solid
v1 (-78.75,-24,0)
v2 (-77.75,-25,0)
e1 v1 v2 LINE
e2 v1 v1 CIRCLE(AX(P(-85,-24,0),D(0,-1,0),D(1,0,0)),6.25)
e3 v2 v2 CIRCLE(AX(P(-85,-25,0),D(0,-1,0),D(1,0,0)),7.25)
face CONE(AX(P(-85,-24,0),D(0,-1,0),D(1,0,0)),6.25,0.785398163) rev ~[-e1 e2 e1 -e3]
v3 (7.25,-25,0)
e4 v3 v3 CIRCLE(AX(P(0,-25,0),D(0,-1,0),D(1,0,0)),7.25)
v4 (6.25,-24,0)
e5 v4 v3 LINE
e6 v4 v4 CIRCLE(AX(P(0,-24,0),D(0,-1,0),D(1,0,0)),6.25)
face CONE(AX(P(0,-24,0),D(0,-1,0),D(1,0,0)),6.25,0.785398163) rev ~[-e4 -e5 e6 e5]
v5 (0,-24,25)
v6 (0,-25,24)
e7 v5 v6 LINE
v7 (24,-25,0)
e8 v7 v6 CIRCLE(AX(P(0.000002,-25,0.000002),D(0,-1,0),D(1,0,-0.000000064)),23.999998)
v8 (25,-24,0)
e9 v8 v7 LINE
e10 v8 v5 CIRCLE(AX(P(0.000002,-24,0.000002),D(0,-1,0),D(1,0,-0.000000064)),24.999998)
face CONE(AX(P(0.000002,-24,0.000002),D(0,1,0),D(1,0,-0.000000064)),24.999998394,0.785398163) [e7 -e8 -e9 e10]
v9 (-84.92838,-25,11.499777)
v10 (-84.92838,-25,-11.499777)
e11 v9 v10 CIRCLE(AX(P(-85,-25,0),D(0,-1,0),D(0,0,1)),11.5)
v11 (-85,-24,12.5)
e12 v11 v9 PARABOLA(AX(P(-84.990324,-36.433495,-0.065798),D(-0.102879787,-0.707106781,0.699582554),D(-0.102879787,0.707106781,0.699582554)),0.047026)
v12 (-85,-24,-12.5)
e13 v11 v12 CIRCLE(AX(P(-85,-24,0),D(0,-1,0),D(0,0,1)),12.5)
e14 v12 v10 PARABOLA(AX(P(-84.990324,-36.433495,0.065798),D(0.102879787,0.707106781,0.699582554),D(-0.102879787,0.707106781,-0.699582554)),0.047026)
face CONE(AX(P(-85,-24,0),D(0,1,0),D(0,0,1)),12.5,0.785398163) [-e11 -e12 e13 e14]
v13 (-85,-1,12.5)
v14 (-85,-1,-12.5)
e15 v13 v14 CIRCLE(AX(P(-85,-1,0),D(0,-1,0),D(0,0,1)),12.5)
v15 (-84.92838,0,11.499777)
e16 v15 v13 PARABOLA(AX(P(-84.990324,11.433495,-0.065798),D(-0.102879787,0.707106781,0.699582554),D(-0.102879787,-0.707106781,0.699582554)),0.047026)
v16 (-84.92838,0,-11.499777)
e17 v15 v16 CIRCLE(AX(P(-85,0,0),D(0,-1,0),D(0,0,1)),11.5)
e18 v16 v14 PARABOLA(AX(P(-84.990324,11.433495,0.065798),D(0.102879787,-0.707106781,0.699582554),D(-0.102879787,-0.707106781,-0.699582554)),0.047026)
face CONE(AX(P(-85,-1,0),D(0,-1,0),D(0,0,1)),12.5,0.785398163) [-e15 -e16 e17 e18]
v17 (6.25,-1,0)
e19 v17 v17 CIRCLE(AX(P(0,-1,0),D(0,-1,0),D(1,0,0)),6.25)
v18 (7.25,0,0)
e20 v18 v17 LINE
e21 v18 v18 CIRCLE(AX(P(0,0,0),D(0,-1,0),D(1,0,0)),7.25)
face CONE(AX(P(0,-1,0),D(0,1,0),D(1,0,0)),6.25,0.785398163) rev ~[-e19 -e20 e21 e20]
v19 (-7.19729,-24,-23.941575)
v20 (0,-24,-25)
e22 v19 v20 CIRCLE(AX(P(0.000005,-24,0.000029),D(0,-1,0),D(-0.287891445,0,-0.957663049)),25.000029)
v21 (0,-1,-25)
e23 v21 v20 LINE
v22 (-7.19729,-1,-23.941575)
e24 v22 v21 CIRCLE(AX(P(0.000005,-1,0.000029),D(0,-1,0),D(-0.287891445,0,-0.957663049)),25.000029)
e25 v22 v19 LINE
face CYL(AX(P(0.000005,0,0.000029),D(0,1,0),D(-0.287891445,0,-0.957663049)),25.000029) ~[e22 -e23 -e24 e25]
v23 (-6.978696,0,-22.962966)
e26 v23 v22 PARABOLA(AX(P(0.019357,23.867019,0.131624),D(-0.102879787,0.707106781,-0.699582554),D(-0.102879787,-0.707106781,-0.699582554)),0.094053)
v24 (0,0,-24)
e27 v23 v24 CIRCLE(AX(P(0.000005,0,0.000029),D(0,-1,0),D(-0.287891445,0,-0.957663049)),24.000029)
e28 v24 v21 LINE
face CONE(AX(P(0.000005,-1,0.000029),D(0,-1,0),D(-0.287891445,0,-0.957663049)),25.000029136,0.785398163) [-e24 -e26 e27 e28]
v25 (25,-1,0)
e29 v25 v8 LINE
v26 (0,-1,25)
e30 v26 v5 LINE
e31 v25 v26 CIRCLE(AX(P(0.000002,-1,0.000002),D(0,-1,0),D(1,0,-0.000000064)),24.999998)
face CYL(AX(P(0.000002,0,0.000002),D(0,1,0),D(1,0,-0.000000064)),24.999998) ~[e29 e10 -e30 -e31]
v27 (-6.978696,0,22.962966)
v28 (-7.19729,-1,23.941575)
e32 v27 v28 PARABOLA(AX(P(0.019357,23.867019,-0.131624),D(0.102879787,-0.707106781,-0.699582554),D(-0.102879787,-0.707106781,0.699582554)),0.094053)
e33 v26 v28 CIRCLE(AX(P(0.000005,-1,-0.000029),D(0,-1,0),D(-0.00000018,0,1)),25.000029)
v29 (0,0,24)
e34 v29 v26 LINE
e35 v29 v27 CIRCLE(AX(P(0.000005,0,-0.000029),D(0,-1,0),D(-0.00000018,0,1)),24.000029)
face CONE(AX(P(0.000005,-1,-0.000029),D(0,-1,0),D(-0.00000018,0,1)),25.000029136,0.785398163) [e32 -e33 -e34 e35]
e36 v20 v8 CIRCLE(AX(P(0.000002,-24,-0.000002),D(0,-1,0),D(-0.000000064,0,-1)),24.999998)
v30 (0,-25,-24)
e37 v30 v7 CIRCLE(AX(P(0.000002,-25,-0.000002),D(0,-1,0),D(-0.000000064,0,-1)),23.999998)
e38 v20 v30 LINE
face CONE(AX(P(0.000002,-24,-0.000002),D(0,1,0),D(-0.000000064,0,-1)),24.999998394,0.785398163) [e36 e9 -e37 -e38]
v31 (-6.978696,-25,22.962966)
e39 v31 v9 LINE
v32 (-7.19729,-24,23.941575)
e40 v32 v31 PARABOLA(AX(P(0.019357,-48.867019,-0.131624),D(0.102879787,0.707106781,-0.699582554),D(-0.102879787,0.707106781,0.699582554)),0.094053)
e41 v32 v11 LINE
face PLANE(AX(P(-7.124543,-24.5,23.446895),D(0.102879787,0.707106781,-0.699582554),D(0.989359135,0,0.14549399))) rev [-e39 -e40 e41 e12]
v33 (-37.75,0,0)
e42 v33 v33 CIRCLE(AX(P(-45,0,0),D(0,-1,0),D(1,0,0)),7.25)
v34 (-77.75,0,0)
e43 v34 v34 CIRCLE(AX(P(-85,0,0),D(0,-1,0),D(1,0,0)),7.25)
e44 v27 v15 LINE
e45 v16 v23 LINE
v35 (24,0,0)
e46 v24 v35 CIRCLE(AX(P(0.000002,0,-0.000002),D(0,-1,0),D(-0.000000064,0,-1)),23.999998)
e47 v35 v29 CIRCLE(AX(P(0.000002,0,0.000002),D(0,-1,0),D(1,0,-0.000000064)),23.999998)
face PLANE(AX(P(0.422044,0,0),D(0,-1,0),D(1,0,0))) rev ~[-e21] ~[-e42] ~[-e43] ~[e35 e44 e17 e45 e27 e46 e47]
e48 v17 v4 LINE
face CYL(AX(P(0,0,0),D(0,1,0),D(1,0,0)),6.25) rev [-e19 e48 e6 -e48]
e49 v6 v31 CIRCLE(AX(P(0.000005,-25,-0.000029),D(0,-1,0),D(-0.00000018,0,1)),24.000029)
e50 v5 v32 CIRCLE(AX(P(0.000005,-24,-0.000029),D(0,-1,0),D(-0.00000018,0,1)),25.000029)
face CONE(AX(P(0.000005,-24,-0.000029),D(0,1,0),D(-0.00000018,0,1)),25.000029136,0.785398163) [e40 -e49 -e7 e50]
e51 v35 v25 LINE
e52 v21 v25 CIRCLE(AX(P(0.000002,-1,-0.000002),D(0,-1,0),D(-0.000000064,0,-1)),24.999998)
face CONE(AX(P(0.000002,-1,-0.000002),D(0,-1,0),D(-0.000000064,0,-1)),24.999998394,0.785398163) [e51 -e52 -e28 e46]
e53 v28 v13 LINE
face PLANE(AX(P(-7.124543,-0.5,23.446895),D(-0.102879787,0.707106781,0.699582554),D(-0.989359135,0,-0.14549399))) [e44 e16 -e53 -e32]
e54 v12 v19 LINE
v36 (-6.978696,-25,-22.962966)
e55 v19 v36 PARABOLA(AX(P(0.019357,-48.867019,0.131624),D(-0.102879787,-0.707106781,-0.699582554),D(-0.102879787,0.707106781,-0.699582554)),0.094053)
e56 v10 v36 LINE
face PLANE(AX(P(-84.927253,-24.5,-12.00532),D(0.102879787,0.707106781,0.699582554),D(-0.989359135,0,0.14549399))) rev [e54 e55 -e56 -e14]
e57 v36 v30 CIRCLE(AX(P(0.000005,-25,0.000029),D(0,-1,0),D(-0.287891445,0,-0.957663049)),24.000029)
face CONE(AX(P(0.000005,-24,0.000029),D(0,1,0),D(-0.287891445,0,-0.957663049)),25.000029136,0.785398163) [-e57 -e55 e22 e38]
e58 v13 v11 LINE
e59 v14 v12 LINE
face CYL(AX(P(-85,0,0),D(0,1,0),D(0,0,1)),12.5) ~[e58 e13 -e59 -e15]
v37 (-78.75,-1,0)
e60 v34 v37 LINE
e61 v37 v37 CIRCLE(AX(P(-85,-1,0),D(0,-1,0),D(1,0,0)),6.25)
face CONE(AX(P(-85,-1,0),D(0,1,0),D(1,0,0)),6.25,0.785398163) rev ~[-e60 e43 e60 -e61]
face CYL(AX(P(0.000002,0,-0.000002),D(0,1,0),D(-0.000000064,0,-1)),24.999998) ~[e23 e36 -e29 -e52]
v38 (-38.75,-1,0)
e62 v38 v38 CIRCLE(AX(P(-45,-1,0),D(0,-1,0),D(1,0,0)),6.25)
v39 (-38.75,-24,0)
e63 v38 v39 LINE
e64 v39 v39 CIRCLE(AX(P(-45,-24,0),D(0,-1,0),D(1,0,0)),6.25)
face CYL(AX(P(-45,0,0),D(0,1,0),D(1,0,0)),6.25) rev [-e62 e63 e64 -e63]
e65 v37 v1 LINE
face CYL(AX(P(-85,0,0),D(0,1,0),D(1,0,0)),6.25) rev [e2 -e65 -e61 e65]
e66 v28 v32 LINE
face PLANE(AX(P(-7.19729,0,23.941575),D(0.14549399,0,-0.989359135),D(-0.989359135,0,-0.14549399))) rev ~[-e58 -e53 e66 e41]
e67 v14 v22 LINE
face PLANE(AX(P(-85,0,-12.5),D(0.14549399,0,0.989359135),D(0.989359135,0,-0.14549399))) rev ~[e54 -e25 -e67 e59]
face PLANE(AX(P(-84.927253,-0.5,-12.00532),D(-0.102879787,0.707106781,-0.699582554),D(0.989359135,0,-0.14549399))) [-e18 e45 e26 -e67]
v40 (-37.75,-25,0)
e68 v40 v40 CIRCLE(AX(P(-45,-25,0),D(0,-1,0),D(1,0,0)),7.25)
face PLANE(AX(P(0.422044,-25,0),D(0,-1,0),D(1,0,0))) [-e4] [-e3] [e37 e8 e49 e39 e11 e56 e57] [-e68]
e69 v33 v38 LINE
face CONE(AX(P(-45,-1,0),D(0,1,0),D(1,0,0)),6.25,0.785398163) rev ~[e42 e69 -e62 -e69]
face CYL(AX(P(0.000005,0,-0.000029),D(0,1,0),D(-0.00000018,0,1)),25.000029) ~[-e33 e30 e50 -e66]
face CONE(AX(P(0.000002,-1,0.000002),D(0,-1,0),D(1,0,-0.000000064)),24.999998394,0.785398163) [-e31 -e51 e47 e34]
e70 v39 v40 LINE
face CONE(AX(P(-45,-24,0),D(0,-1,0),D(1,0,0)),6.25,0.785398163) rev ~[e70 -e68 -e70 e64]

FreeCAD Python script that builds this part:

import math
import FreeCAD as App
import Part
import Sketcher


def edges_at(feature, points):
    """Names of the edges that pass closest to the given points."""
    edges = feature.Shape.Edges
    near = lambda p: min(range(len(edges)), key=lambda i: edges[i].distToShape(Part.Vertex(*p))[0])
    return sorted({f"Edge{near(p) + 1}" for p in points})

doc = App.newDocument("Part")
params = doc.addObject("Spreadsheet::Sheet", "Params")
for row, (alias, value) in enumerate([
    ("sketch1_radius", "24.999998 mm"),
    ("sketch1_diameter", "12.5 mm"),
    ("sketch1_radius2", "12.5 mm"),
    ("pad1_length", "25 mm"),
    ("chamfer_size", "1 mm"),
    ("chamfer2_size", "1 mm"),
], start=1):
    params.set(f"A{row}", alias)
    params.set(f"B{row}", "=" + value)
    params.setAlias(f"B{row}", alias)

body = doc.addObject("PartDesign::Body", "Body")

# Sketch on XZ plane
sketch1 = body.newObject("Sketcher::SketchObject", "Sketch")
sketch1.AttachmentSupport = (doc.getObject("XZ_Plane"), [""])
sketch1.MapMode = "FlatFace"
sketch1.addGeometry([
    Part.ArcOfCircle(Part.Circle(App.Vector(0.000002, -0.000002, 0), App.Vector(0, 0, 1), 24.999998), math.radians(-90.000004), math.radians(0.000004)),  # 0
    Part.ArcOfCircle(Part.Circle(App.Vector(0.000002, 0.000002, 0), App.Vector(0, 0, 1), 24.999998), math.radians(-0.000004), math.radians(90.000004)),  # 1
    Part.ArcOfCircle(Part.Circle(App.Vector(0.000005, -0.000029, 0), App.Vector(0, 0, 1), 25.000029), math.radians(90.00001), math.radians(106.731762)),  # 2
    Part.LineSegment(App.Vector(-7.19729, 23.941575, 0), App.Vector(-85, 12.5, 0)),  # 3
    Part.ArcOfCircle(Part.Circle(App.Vector(-85, 0, 0), App.Vector(0, 0, 1), 12.5), math.radians(90), math.radians(270)),  # 4
    Part.LineSegment(App.Vector(-85, -12.5, 0), App.Vector(-7.19729, -23.941575, 0)),  # 5
    Part.ArcOfCircle(Part.Circle(App.Vector(0.000005, 0.000029, 0), App.Vector(0, 0, 1), 25.000029), math.radians(-106.731762), math.radians(-90.00001)),  # 6
    Part.Circle(App.Vector(-85, 0, 0), App.Vector(0, 0, 1), 6.25),  # 7
    Part.Circle(App.Vector(-45, 0, 0), App.Vector(0, 0, 1), 6.25),  # 8
    Part.Circle(App.Vector(0, 0, 0), App.Vector(0, 0, 1), 6.25),  # 9
], False)
sketch1.addConstraint([
    Sketcher.Constraint("Tangent", 0, 2, 1, 1),
    Sketcher.Constraint("Tangent", 1, 2, 2, 1),
    Sketcher.Constraint("Coincident", 2, 2, 3, 1),
    Sketcher.Constraint("Coincident", 3, 2, 4, 1),
    Sketcher.Constraint("Coincident", 4, 2, 5, 1),
    Sketcher.Constraint("Coincident", 5, 2, 6, 1),
    Sketcher.Constraint("Tangent", 6, 2, 0, 1),
    Sketcher.Constraint("Coincident", 0, 3, -1, 1),
    Sketcher.Constraint("Coincident", 9, 3, -1, 1),
    Sketcher.Constraint("Coincident", 7, 3, 4, 3),
    Sketcher.Constraint("Equal", 0, 1),
    Sketcher.Constraint("Equal", 2, 6),
    Sketcher.Constraint("Equal", 7, 8),
    Sketcher.Constraint("Equal", 8, 9),
    Sketcher.Constraint("Symmetric", 3, 2, 4, 2, -1),
    Sketcher.Constraint("PointOnObject", 8, 3, -1),
    Sketcher.Constraint("PointOnObject", 0, 2, -1),
    Sketcher.Constraint("PointOnObject", 1, 2, -2),
    Sketcher.Constraint("PointOnObject", 6, 2, -2),
    Sketcher.Constraint("Vertical", 7, 3, 3, 2),
    Sketcher.Constraint("Vertical", 2, 2, 5, 2),
    Sketcher.Constraint("Radius", 0, 24.999998),
    Sketcher.Constraint("Diameter", 7, 12.5),
    Sketcher.Constraint("Radius", 4, 12.5),
    Sketcher.Constraint("DistanceX", 4, 3, -1, 1, 85.0),
    Sketcher.Constraint("DistanceX", 8, 3, -1, 1, 45.0),
    Sketcher.Constraint("Radius", 2, 25.000029),
    Sketcher.Constraint("DistanceX", 2, 2, -1, 1, 7.19729),
])
sketch1.setExpression("Constraints[21]", "Params.sketch1_radius")
sketch1.setExpression("Constraints[22]", "Params.sketch1_diameter")
sketch1.setExpression("Constraints[23]", "Params.sketch1_radius2")
pad1 = body.newObject("PartDesign::Pad", "Pad")
pad1.Profile = sketch1
pad1.setExpression("Length", "Params.pad1_length")
doc.recompute()

chamfer = body.newObject("PartDesign::Chamfer", "Chamfer")
chamfer.Base = (pad1, edges_at(pad1, [
    (-3.637, -25, 24.734),
    (-46.099, -25, 18.221),
    (-97.5, -25, 0),
    (-46.099, -25, -18.221),
    (17.678, -25, -17.678),
    (-6.25, -25, 0),
    (-51.25, -25, 0),
    (-91.25, -25, 0),
]))
chamfer.setExpression("Size", "Params.chamfer_size")
doc.recompute()

chamfer2 = body.newObject("PartDesign::Chamfer", "Chamfer001")
chamfer2.Base = (chamfer, edges_at(chamfer, [
    (-3.637, 0, 24.734),
    (-46.099, 0, 18.221),
    (-97.5, 0, 0),
    (-46.099, 0, -18.221),
    (17.678, 0, -17.678),
    (-6.25, 0, 0),
    (-51.25, 0, 0),
    (-91.25, 0, 0),
]))
chamfer2.setExpression("Size", "Params.chamfer2_size")

doc.recompute()
